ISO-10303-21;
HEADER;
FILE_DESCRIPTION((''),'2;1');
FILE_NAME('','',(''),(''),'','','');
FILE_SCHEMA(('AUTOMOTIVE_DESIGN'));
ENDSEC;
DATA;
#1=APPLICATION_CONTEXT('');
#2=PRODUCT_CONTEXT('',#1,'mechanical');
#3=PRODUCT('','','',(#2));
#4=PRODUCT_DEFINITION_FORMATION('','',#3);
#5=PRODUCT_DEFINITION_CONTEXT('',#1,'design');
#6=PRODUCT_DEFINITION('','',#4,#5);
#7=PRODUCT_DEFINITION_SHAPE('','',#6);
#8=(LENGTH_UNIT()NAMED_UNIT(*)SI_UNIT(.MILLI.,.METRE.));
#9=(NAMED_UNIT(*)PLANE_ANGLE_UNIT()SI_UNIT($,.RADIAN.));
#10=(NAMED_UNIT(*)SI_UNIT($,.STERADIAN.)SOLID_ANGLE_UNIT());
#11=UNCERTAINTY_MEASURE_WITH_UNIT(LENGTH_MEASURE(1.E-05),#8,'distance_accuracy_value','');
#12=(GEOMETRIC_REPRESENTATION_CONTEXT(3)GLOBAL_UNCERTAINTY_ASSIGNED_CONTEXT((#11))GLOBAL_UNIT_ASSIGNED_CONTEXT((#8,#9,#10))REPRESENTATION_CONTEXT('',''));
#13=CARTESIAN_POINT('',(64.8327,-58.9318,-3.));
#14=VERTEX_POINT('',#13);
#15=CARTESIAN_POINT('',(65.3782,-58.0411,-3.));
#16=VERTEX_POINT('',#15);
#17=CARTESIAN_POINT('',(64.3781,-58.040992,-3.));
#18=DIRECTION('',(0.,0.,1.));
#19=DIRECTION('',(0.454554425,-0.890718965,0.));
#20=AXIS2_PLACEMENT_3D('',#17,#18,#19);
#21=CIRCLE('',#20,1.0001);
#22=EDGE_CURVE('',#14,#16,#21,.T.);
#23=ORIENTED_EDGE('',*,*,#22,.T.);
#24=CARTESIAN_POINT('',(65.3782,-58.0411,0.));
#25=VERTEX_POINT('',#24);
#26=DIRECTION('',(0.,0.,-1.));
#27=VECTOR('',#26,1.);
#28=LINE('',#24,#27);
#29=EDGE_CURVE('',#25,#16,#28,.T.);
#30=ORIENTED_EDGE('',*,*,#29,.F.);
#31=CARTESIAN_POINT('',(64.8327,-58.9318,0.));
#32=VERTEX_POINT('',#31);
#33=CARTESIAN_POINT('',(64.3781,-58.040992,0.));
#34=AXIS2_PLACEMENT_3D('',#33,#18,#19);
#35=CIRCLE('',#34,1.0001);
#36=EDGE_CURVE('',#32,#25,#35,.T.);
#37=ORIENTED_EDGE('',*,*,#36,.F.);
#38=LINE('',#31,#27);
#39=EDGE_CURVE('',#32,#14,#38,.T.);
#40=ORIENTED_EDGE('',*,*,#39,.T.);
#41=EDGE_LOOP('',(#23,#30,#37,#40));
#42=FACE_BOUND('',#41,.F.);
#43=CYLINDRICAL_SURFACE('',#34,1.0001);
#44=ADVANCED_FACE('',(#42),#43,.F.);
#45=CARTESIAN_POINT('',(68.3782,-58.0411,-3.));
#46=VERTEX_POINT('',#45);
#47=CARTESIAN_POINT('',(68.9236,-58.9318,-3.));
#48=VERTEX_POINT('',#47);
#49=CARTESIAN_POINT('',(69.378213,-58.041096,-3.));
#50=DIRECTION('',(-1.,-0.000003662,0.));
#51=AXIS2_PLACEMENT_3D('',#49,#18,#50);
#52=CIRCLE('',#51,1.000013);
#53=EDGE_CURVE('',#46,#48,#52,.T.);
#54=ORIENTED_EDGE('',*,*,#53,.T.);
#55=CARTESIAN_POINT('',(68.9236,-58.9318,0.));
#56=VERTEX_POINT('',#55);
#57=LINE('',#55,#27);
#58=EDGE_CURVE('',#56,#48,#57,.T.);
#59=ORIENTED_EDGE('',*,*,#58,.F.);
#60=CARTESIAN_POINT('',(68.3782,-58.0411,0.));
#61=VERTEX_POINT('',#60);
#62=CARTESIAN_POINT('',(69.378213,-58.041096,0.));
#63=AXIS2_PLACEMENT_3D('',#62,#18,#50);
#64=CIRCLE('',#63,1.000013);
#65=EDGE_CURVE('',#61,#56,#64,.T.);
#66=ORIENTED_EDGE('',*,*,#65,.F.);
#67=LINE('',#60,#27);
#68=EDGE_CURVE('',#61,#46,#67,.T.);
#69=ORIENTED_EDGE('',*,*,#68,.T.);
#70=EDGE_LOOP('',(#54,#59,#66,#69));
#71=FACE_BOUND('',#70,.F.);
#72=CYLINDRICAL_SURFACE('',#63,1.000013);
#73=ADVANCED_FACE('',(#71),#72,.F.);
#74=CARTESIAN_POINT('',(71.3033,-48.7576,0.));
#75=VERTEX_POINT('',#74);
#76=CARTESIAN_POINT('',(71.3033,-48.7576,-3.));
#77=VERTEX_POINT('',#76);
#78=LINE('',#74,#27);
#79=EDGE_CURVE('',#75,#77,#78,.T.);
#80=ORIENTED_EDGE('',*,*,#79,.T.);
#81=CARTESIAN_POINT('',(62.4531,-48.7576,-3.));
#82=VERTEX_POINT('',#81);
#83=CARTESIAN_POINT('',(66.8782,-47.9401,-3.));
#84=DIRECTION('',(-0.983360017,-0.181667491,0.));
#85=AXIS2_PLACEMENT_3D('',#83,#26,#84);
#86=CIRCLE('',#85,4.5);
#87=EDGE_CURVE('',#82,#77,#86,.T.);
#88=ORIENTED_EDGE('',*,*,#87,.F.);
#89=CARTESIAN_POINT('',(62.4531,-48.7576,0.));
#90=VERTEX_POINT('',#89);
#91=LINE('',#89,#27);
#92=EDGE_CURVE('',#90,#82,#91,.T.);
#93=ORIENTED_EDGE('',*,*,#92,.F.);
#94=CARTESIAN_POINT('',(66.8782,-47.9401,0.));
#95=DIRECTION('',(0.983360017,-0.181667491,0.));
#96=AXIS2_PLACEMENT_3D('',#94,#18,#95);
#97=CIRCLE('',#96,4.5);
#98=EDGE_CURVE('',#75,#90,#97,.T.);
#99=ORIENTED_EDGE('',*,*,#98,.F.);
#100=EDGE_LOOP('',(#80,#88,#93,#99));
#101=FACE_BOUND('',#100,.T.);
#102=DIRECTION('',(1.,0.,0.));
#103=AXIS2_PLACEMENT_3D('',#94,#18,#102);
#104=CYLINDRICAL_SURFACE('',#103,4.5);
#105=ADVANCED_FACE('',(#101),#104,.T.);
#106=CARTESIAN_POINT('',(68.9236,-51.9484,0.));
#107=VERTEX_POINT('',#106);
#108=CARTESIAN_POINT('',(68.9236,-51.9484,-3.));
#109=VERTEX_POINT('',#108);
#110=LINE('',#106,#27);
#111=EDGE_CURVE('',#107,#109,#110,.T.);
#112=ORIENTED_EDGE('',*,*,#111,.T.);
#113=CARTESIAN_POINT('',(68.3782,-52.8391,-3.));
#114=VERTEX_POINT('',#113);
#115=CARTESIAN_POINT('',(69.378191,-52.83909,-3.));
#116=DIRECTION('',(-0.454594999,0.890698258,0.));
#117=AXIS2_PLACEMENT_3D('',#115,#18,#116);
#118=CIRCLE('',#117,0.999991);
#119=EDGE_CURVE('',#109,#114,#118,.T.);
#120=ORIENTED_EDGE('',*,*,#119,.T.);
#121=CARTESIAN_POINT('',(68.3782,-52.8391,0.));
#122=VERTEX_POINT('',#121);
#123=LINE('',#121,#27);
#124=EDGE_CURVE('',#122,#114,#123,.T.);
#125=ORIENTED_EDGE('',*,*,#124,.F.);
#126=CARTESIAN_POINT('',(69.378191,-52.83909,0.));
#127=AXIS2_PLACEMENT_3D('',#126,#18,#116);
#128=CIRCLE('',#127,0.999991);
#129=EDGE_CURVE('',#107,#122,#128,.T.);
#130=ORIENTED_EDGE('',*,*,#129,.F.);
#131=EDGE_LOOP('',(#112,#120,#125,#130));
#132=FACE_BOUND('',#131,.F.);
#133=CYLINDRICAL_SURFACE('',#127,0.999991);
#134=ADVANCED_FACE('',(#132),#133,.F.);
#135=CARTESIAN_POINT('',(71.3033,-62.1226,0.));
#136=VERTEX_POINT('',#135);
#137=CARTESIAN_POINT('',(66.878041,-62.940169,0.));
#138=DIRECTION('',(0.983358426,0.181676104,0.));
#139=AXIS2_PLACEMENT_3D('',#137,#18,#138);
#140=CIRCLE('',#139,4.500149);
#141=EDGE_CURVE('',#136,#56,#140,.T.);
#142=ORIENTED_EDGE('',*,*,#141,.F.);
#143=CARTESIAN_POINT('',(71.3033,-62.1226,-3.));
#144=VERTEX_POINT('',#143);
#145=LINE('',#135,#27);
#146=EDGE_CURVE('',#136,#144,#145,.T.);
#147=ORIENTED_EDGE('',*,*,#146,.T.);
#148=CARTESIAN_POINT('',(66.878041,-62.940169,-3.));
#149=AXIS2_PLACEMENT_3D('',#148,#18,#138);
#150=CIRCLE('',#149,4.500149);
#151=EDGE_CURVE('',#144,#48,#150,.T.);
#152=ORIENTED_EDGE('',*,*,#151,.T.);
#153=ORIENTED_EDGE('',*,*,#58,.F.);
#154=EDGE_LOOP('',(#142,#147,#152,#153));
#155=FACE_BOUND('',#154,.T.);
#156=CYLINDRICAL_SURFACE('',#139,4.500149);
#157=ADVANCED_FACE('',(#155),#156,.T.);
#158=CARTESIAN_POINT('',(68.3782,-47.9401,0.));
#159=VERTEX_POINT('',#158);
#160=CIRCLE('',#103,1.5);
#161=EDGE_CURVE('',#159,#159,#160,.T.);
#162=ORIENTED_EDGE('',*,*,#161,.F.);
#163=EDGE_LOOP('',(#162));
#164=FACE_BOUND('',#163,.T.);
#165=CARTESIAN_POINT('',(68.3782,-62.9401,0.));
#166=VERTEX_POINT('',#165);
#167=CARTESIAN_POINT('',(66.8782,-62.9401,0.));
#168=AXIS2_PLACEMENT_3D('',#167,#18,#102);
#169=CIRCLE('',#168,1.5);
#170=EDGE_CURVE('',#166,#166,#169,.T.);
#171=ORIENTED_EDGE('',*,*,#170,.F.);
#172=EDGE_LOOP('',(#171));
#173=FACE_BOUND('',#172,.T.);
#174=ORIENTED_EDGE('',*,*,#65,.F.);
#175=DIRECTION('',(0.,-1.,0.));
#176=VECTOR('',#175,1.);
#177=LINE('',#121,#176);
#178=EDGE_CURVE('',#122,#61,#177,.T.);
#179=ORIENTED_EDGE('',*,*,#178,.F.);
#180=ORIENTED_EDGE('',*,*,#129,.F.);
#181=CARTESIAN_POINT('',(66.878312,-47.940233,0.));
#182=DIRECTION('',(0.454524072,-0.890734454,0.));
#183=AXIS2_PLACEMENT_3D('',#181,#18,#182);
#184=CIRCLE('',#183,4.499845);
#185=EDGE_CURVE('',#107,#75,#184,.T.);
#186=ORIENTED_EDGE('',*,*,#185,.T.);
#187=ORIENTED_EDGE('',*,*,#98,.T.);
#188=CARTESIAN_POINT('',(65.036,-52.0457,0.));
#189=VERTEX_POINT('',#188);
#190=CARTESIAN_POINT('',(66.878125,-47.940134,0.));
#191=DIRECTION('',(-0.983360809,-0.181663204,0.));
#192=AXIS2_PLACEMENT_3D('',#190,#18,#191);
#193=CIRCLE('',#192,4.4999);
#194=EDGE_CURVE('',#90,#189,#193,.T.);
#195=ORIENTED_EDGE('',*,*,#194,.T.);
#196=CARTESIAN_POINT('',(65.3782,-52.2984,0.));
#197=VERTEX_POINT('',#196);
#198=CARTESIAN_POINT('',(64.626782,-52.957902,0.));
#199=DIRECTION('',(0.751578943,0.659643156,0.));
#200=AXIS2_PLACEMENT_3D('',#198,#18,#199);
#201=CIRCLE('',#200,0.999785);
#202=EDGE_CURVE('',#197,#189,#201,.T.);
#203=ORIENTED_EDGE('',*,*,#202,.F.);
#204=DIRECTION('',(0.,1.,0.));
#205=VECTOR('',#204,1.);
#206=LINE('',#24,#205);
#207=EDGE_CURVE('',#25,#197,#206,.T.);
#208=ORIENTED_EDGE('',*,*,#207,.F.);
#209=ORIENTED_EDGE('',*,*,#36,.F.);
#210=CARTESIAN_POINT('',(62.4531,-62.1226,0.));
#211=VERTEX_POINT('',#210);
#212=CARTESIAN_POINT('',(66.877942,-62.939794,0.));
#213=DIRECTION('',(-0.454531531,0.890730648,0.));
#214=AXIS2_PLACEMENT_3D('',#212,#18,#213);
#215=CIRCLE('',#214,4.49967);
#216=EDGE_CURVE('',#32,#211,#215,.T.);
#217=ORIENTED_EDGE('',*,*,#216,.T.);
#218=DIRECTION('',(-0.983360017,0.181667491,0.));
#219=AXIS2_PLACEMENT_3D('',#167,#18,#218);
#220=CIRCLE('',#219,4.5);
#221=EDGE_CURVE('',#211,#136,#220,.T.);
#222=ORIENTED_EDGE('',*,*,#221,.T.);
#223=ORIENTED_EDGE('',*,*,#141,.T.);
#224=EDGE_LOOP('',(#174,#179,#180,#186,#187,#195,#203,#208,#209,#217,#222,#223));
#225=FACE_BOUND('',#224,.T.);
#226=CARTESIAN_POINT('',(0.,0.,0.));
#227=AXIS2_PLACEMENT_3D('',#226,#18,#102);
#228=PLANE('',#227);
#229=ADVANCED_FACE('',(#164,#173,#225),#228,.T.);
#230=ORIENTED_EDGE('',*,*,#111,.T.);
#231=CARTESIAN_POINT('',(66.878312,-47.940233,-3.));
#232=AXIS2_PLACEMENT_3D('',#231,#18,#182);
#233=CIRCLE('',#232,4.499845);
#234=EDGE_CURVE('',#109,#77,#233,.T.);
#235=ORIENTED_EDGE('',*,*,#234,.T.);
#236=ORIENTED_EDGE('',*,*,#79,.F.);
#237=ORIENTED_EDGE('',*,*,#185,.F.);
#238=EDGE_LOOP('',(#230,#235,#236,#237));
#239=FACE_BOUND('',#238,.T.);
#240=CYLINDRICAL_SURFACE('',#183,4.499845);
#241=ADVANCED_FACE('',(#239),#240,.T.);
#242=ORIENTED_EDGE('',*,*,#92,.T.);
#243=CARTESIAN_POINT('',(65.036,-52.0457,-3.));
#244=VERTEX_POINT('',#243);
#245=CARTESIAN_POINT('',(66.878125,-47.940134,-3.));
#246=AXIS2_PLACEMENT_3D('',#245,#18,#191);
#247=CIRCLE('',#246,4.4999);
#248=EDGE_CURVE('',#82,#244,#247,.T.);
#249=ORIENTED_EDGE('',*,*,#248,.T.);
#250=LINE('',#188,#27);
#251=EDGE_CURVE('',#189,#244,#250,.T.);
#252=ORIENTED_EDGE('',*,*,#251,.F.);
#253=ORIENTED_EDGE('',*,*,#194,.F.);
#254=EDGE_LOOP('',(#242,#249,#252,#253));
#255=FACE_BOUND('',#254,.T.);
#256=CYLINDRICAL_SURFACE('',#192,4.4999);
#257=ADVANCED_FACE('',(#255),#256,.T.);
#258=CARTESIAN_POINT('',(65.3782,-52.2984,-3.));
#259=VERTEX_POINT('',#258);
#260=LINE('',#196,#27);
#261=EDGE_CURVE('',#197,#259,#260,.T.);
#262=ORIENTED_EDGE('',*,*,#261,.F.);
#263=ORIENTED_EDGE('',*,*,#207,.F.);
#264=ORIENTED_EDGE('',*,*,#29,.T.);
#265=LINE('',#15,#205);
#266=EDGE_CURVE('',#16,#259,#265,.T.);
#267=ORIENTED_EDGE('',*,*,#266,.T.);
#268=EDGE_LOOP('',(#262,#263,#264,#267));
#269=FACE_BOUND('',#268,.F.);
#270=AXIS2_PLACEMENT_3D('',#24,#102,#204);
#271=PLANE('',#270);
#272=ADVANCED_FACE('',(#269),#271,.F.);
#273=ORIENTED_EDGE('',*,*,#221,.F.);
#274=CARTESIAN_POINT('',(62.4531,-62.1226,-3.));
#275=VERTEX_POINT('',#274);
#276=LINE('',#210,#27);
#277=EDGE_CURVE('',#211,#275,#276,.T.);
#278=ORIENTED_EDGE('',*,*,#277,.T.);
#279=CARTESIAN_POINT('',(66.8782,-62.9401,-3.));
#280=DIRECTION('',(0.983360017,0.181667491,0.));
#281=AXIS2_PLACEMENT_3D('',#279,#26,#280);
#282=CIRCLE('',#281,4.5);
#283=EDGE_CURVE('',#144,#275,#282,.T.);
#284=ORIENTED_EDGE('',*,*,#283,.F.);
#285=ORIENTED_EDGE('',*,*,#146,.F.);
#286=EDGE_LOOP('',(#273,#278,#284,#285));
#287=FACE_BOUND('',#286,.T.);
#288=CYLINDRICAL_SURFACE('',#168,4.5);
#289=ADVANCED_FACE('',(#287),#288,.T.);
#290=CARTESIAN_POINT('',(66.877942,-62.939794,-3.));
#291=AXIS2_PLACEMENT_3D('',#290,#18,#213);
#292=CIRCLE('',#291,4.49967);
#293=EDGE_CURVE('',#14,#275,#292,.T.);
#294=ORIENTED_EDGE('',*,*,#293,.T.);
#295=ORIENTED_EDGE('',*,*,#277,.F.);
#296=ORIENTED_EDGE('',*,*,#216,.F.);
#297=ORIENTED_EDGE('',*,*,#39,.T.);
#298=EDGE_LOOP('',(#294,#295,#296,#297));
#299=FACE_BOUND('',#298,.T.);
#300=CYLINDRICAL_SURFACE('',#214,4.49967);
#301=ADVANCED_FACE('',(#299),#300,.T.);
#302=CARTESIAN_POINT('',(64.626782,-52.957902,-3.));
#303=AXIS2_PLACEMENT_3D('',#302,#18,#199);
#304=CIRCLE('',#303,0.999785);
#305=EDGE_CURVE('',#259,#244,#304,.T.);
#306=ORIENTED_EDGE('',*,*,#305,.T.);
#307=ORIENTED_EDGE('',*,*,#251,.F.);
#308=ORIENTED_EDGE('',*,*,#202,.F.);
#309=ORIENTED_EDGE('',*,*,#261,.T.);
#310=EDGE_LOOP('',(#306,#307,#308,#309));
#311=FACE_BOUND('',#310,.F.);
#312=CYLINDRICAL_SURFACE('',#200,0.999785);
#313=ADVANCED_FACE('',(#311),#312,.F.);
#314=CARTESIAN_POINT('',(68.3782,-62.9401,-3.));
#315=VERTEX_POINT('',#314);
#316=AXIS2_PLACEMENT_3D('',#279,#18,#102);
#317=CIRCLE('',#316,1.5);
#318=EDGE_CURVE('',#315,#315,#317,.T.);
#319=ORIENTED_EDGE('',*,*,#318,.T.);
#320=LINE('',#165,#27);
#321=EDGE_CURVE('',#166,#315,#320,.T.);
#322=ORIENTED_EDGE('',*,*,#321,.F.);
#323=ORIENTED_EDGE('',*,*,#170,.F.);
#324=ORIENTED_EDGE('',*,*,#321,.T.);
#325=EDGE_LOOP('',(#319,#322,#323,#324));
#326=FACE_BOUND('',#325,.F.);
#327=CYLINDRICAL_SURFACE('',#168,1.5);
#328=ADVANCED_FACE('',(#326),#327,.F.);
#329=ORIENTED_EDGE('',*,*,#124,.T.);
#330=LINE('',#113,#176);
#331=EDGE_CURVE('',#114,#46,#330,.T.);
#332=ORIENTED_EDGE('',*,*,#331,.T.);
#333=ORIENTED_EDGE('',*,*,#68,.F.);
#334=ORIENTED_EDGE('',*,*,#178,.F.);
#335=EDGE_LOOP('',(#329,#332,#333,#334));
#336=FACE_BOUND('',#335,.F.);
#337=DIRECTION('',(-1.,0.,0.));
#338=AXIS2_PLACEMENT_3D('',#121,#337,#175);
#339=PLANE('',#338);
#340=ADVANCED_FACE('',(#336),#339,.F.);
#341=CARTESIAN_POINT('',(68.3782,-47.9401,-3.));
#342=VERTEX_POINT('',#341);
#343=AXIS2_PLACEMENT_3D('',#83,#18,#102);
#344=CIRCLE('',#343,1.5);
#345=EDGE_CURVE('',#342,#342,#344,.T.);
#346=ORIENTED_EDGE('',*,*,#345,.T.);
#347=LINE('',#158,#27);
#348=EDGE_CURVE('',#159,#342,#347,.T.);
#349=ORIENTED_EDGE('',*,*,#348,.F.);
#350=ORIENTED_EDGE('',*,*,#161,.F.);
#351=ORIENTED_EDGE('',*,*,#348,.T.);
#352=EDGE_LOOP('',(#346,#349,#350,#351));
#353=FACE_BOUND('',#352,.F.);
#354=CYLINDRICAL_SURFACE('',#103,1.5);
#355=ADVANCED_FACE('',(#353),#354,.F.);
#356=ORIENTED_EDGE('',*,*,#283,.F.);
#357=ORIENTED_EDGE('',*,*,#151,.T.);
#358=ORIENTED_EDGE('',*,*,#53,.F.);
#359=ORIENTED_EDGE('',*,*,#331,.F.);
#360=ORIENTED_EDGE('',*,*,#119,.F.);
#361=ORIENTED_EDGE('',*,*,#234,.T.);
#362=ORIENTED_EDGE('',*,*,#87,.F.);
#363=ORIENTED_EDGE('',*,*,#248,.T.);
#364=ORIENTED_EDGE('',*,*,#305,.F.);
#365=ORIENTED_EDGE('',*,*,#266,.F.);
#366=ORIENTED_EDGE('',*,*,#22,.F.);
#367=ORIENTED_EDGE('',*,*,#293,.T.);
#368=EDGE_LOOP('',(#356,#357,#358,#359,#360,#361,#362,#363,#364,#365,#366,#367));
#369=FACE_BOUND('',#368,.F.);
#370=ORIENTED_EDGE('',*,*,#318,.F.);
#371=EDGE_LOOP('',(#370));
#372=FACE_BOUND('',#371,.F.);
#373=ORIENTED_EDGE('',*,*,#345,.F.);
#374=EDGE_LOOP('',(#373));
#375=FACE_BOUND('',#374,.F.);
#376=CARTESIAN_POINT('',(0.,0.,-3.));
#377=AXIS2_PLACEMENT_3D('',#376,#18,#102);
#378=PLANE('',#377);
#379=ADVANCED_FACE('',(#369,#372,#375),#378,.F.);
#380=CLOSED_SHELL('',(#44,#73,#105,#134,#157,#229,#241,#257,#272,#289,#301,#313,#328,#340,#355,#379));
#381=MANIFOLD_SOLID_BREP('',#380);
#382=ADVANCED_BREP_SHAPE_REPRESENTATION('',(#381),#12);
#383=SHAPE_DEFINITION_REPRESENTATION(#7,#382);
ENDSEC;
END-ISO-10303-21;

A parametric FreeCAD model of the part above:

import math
import FreeCAD as App
import Part
import Sketcher
from FreeCAD import Vector
Q = App.Units.Quantity

doc = App.newDocument("Part")
body = doc.addObject("PartDesign::Body", "Body")

# Sketch on XY plane
sketch1 = body.newObject("Sketcher::SketchObject", "Sketch")
sketch1.AttachmentSupport = (doc.getObject("XY_Plane"), [""])
sketch1.MapMode = "FlatFace"
sketch1.addGeometry([
    Part.ArcOfCircle(Part.Circle(Vector(69.38, -58.04, 0), Vector(0, 0, 1), 1), math.radians(180), math.radians(243)),  # 0
    Part.LineSegment(Vector(68.38, -58.04, 0), Vector(68.38, -52.84, 0)),  # 1
    Part.ArcOfCircle(Part.Circle(Vector(69.38, -52.84, 0), Vector(0, 0, 1), 1), math.radians(117), math.radians(180)),  # 2
    Part.ArcOfCircle(Part.Circle(Vector(66.88, -47.94, 0), Vector(0, 0, 1), 4.5), math.radians(-63), math.radians(-10)),  # 3
    Part.ArcOfCircle(Part.Circle(Vector(66.88, -47.94, 0), Vector(0, 0, 1), 4.5), math.radians(-10), math.radians(190)),  # 4
    Part.ArcOfCircle(Part.Circle(Vector(66.88, -47.94, 0), Vector(0, 0, 1), 4.5), math.radians(-170), math.radians(-114)),  # 5
    Part.ArcOfCircle(Part.Circle(Vector(64.63, -52.96, 0), Vector(0, 0, 1), 1), math.radians(41), math.radians(66)),  # 6
    Part.LineSegment(Vector(65.38, -52.3, 0), Vector(65.38, -58.04, 0)),  # 7
    Part.ArcOfCircle(Part.Circle(Vector(64.38, -58.04, 0), Vector(0, 0, 1), 1), math.radians(-63), math.radians(0)),  # 8
    Part.ArcOfCircle(Part.Circle(Vector(66.88, -62.94, 0), Vector(0, 0, 1), 4.5), math.radians(117), math.radians(170)),  # 9
    Part.ArcOfCircle(Part.Circle(Vector(66.88, -62.94, 0), Vector(0, 0, 1), 4.5), math.radians(170), math.radians(370)),  # 10
    Part.ArcOfCircle(Part.Circle(Vector(66.88, -62.94, 0), Vector(0, 0, 1), 4.5), math.radians(10), math.radians(63)),  # 11
    Part.Circle(Vector(66.88, -62.94, 0), Vector(0, 0, 1), 1.5),  # 12
    Part.Circle(Vector(66.88, -47.94, 0), Vector(0, 0, 1), 1.5),  # 13
], False)
sketch1.addConstraint([
    Sketcher.Constraint("Tangent", 0, 1, 1, 1),
    Sketcher.Constraint("Tangent", 1, 2, 2, 2),
    Sketcher.Constraint("Tangent", 2, 1, 3, 1),
    Sketcher.Constraint("Tangent", 3, 2, 4, 1),
    Sketcher.Constraint("Tangent", 4, 2, 5, 1),
    Sketcher.Constraint("Tangent", 5, 2, 6, 2),
    Sketcher.Constraint("Coincident", 6, 1, 7, 1),
    Sketcher.Constraint("Tangent", 7, 2, 8, 2),
    Sketcher.Constraint("Tangent", 8, 1, 9, 1),
    Sketcher.Constraint("Tangent", 9, 2, 10, 1),
    Sketcher.Constraint("Tangent", 10, 2, 11, 1),
    Sketcher.Constraint("Tangent", 11, 2, 0, 2),
    Sketcher.Constraint("Vertical", 1),
    Sketcher.Constraint("Vertical", 7),
    Sketcher.Constraint("Coincident", 5, 3, 3, 3),
    Sketcher.Constraint("Coincident", 11, 3, 9, 3),
    Sketcher.Constraint("Coincident", 12, 3, 9, 3),
    Sketcher.Constraint("Coincident", 13, 3, 3, 3),
    Sketcher.Constraint("Equal", 0, 2),
    Sketcher.Constraint("Equal", 2, 6),
    Sketcher.Constraint("Equal", 6, 8),
    Sketcher.Constraint("Equal", 5, 9),
    Sketcher.Constraint("Equal", 12, 13),
    Sketcher.Constraint("Horizontal", 0, 3, 8, 3),
    Sketcher.Constraint("Horizontal", 3, 2, 4, 2),
    Sketcher.Constraint("Horizontal", 9, 2, 10, 2),
    Sketcher.Constraint("Vertical", 5, 3, 9, 3),
    Sketcher.Constraint("Vertical", 4, 2, 9, 2),
    Sketcher.Constraint("Diameter", 12, Q("3 mm")),
    Sketcher.Constraint("Radius", 0, Q("1 mm")),
    Sketcher.Constraint("Radius", 3, Q("4.5 mm")),
    Sketcher.Constraint("DistanceX", 8, 3, 0, 3, Q("5 mm")),
    Sketcher.Constraint("DistanceY", 9, 3, 3, 3, Q("15 mm")),
    Sketcher.Constraint("DistanceY", 3, 3, -1, 1, Q("47.94 mm")),
    Sketcher.Constraint("DistanceY", 6, 1, 2, 1, Q("0.35 mm")),
    Sketcher.Constraint("DistanceX", -1, 1, 4, 2, Q("62.453 mm")),
    Sketcher.Constraint("DistanceX", -1, 1, 5, 2, Q("65.036 mm")),
])
pad1 = body.newObject("PartDesign::Pad", "Pad")
pad1.Profile = sketch1
pad1.Length = 3
pad1.Reversed = True

doc.recompute()
